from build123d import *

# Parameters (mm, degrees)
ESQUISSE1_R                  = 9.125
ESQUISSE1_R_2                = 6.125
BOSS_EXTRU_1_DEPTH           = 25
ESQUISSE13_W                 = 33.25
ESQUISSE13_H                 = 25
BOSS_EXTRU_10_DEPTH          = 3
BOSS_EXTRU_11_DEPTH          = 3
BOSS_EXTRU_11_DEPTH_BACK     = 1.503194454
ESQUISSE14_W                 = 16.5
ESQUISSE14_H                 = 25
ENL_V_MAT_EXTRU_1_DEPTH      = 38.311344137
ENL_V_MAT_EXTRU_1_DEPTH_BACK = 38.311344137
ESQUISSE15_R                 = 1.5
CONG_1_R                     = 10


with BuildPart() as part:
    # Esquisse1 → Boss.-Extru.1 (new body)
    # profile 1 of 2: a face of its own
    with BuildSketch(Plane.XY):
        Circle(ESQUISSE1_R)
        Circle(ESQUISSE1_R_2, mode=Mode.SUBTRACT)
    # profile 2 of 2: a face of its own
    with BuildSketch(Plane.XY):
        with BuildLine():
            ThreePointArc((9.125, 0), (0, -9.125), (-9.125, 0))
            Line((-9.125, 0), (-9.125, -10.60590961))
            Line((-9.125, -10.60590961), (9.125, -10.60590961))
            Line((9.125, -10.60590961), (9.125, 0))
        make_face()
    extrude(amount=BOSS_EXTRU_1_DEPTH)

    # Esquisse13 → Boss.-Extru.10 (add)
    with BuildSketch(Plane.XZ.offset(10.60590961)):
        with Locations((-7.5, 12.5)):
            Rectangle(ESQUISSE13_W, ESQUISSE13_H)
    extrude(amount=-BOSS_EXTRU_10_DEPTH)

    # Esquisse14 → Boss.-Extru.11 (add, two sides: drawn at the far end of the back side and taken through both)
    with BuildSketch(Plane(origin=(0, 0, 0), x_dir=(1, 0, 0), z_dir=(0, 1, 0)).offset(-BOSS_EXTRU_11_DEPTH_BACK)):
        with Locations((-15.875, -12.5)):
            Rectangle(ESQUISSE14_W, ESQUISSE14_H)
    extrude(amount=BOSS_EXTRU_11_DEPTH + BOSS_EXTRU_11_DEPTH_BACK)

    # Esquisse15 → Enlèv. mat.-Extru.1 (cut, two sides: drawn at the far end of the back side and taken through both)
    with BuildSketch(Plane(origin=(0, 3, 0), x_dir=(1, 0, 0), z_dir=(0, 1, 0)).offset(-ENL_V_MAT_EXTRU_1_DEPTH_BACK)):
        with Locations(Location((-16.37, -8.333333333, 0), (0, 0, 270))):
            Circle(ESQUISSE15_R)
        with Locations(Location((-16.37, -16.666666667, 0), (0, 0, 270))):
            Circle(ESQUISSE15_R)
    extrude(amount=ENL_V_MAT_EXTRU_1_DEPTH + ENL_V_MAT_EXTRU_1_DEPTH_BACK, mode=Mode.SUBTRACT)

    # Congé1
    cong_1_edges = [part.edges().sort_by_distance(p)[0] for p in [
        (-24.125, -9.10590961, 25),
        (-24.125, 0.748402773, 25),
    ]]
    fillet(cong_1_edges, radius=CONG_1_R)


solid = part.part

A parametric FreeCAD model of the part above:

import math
import FreeCAD as App
import Part
import Sketcher

V = App.Vector
Q = App.Units.Quantity


def edges_at(feature, points):
    """Names of the edges that pass closest to the given points."""
    edges = feature.Shape.Edges
    near = lambda p: min(range(len(edges)), key=lambda i: edges[i].distToShape(Part.Vertex(*p))[0])
    return sorted({f"Edge{near(p) + 1}" for p in points})

doc = App.newDocument("Part")
body = doc.addObject("PartDesign::Body", "Body")

# Sketch on XY plane
sketch1 = doc.addObject("Sketcher::SketchObject", "Sketch")
body.addObject(sketch1)
sketch1.AttachmentSupport = (doc.XY_Plane, [""])
sketch1.MapMode = "FlatFace"
sketch1.addGeometry([
    Part.ArcOfCircle(Part.Circle(V(0, 0, 0), V(0, 0, 1), 9.125), math.radians(0), math.radians(180)),  # 0
    Part.LineSegment(V(-9.125, 0, 0), V(-9.125, -10.60591, 0)),  # 1
    Part.LineSegment(V(-9.125, -10.60591, 0), V(9.125, -10.60591, 0)),  # 2
    Part.LineSegment(V(9.125, -10.60591, 0), V(9.125, 0, 0)),  # 3
    Part.Circle(V(0, 0, 0), V(0, 0, 1), 6.125),  # 4
], False)
sketch1.addConstraint([
    Sketcher.Constraint("Tangent", 0, 2, 1, 1),
    Sketcher.Constraint("Coincident", 1, 2, 2, 1),
    Sketcher.Constraint("Coincident", 2, 2, 3, 1),
    Sketcher.Constraint("Tangent", 3, 2, 0, 1),
    Sketcher.Constraint("Vertical", 1),
    Sketcher.Constraint("Horizontal", 2),
    Sketcher.Constraint("Vertical", 3),
    Sketcher.Constraint("Coincident", 0, 3, -1, 1),
    Sketcher.Constraint("Coincident", 4, 3, -1, 1),
    Sketcher.Constraint("Diameter", 4, Q("12.25 mm")),
    Sketcher.Constraint("Radius", 0, Q("9.125 mm")),
    Sketcher.Constraint("DistanceY", 1, 2, 1, 1, Q("10.60591 mm")),
])
pad1 = doc.addObject("PartDesign::Pad", "Pad")
body.addObject(pad1)
pad1.Profile = sketch1
pad1.Length = 25

# Sketch on XZ plane
sketch2 = doc.addObject("Sketcher::SketchObject", "Sketch001")
body.addObject(sketch2)
sketch2.AttachmentSupport = (doc.XZ_Plane, [""])
sketch2.MapMode = "FlatFace"
sketch2.AttachmentOffset = App.Placement(V(0, 0, 10.60591), App.Rotation())
sketch2.addGeometry([
    Part.LineSegment(V(-24.125, 25, 0), V(-24.125, 0, 0)),
    Part.LineSegment(V(-24.125, 0, 0), V(9.125, 0, 0)),
    Part.LineSegment(V(9.125, 0, 0), V(9.125, 25, 0)),
    Part.LineSegment(V(9.125, 25, 0), V(-24.125, 25, 0)),
], False)
sketch2.addConstraint([
    Sketcher.Constraint("Coincident", 0, 2, 1, 1),
    Sketcher.Constraint("Coincident", 1, 2, 2, 1),
    Sketcher.Constraint("Coincident", 2, 2, 3, 1),
    Sketcher.Constraint("Coincident", 3, 2, 0, 1),
    Sketcher.Constraint("Vertical", 0),
    Sketcher.Constraint("Horizontal", 1),
    Sketcher.Constraint("Vertical", 2),
    Sketcher.Constraint("Horizontal", 3),
    Sketcher.Constraint("PointOnObject", 0, 2, -1),
    Sketcher.Constraint("DistanceY", 0, 2, 0, 1, Q("25 mm")),
    Sketcher.Constraint("DistanceX", 1, 1, 1, 2, Q("33.25 mm")),
    Sketcher.Constraint("DistanceX", 0, 2, -1, 1, Q("24.125 mm")),
])
pad2 = doc.addObject("PartDesign::Pad", "Pad001")
body.addObject(pad2)
pad2.Profile = sketch2
pad2.Length = 3
pad2.Reversed = True

# Sketch on XZ plane
sketch3 = doc.addObject("Sketcher::SketchObject", "Sketch002")
body.addObject(sketch3)
sketch3.AttachmentSupport = (doc.XZ_Plane, [""])
sketch3.MapMode = "FlatFace"
sketch3.addGeometry([
    Part.LineSegment(V(-24.125, 0, 0), V(-24.125, 25, 0)),
    Part.LineSegment(V(-24.125, 25, 0), V(-7.625, 25, 0)),
    Part.LineSegment(V(-7.625, 25, 0), V(-7.625, 0, 0)),
    Part.LineSegment(V(-7.625, 0, 0), V(-24.125, 0, 0)),
], False)
sketch3.addConstraint([
    Sketcher.Constraint("Coincident", 0, 2, 1, 1),
    Sketcher.Constraint("Coincident", 1, 2, 2, 1),
    Sketcher.Constraint("Coincident", 2, 2, 3, 1),
    Sketcher.Constraint("Coincident", 3, 2, 0, 1),
    Sketcher.Constraint("Vertical", 0),
    Sketcher.Constraint("Horizontal", 1),
    Sketcher.Constraint("Vertical", 2),
    Sketcher.Constraint("Horizontal", 3),
    Sketcher.Constraint("PointOnObject", 2, 2, -1),
    Sketcher.Constraint("DistanceY", 0, 1, 0, 2, Q("25 mm")),
    Sketcher.Constraint("DistanceX", 1, 1, 1, 2, Q("16.5 mm")),
    Sketcher.Constraint("DistanceX", 0, 2, -1, 1, Q("24.125 mm")),
])
pad3 = doc.addObject("PartDesign::Pad", "Pad002")
body.addObject(pad3)
pad3.Profile = sketch3
pad3.Type = "TwoLengths"
pad3.Length = 3
pad3.Length2 = 1.503194
pad3.Reversed = True

# Sketch on XZ plane
sketch4 = doc.addObject("Sketcher::SketchObject", "Sketch003")
body.addObject(sketch4)
sketch4.AttachmentSupport = (doc.XZ_Plane, [""])
sketch4.MapMode = "FlatFace"
sketch4.AttachmentOffset = App.Placement(V(0, 0, -3), App.Rotation())
sketch4.addGeometry([
    Part.Circle(V(-16.37, 8.333333, 0), V(0, 0, 1), 1.5),
    Part.Circle(V(-16.37, 16.666667, 0), V(0, 0, 1), 1.5),
], False)
sketch4.addConstraint([
    Sketcher.Constraint("Equal", 0, 1),
    Sketcher.Constraint("Vertical", 0, 3, 1, 3),
    Sketcher.Constraint("Diameter", 0, Q("3 mm")),
    Sketcher.Constraint("DistanceX", 0, 3, -1, 1, Q("16.37 mm")),
    Sketcher.Constraint("DistanceY", -1, 1, 0, 3, Q("8.333333 mm")),
    Sketcher.Constraint("DistanceY", -1, 1, 1, 3, Q("16.666667 mm")),
])
pocket1 = doc.addObject("PartDesign::Pocket", "Pocket")
body.addObject(pocket1)
pocket1.Profile = sketch4
pocket1.Type = "ThroughAll"
pocket1.Midplane = True
doc.recompute()

fillet = doc.addObject("PartDesign::Fillet", "Fillet")
body.addObject(fillet)
fillet.Base = (pocket1, edges_at(pocket1, [(-24.125, -9.106, 25), (-24.125, 0.748, 25)]))
fillet.Radius = 10

doc.recompute()
